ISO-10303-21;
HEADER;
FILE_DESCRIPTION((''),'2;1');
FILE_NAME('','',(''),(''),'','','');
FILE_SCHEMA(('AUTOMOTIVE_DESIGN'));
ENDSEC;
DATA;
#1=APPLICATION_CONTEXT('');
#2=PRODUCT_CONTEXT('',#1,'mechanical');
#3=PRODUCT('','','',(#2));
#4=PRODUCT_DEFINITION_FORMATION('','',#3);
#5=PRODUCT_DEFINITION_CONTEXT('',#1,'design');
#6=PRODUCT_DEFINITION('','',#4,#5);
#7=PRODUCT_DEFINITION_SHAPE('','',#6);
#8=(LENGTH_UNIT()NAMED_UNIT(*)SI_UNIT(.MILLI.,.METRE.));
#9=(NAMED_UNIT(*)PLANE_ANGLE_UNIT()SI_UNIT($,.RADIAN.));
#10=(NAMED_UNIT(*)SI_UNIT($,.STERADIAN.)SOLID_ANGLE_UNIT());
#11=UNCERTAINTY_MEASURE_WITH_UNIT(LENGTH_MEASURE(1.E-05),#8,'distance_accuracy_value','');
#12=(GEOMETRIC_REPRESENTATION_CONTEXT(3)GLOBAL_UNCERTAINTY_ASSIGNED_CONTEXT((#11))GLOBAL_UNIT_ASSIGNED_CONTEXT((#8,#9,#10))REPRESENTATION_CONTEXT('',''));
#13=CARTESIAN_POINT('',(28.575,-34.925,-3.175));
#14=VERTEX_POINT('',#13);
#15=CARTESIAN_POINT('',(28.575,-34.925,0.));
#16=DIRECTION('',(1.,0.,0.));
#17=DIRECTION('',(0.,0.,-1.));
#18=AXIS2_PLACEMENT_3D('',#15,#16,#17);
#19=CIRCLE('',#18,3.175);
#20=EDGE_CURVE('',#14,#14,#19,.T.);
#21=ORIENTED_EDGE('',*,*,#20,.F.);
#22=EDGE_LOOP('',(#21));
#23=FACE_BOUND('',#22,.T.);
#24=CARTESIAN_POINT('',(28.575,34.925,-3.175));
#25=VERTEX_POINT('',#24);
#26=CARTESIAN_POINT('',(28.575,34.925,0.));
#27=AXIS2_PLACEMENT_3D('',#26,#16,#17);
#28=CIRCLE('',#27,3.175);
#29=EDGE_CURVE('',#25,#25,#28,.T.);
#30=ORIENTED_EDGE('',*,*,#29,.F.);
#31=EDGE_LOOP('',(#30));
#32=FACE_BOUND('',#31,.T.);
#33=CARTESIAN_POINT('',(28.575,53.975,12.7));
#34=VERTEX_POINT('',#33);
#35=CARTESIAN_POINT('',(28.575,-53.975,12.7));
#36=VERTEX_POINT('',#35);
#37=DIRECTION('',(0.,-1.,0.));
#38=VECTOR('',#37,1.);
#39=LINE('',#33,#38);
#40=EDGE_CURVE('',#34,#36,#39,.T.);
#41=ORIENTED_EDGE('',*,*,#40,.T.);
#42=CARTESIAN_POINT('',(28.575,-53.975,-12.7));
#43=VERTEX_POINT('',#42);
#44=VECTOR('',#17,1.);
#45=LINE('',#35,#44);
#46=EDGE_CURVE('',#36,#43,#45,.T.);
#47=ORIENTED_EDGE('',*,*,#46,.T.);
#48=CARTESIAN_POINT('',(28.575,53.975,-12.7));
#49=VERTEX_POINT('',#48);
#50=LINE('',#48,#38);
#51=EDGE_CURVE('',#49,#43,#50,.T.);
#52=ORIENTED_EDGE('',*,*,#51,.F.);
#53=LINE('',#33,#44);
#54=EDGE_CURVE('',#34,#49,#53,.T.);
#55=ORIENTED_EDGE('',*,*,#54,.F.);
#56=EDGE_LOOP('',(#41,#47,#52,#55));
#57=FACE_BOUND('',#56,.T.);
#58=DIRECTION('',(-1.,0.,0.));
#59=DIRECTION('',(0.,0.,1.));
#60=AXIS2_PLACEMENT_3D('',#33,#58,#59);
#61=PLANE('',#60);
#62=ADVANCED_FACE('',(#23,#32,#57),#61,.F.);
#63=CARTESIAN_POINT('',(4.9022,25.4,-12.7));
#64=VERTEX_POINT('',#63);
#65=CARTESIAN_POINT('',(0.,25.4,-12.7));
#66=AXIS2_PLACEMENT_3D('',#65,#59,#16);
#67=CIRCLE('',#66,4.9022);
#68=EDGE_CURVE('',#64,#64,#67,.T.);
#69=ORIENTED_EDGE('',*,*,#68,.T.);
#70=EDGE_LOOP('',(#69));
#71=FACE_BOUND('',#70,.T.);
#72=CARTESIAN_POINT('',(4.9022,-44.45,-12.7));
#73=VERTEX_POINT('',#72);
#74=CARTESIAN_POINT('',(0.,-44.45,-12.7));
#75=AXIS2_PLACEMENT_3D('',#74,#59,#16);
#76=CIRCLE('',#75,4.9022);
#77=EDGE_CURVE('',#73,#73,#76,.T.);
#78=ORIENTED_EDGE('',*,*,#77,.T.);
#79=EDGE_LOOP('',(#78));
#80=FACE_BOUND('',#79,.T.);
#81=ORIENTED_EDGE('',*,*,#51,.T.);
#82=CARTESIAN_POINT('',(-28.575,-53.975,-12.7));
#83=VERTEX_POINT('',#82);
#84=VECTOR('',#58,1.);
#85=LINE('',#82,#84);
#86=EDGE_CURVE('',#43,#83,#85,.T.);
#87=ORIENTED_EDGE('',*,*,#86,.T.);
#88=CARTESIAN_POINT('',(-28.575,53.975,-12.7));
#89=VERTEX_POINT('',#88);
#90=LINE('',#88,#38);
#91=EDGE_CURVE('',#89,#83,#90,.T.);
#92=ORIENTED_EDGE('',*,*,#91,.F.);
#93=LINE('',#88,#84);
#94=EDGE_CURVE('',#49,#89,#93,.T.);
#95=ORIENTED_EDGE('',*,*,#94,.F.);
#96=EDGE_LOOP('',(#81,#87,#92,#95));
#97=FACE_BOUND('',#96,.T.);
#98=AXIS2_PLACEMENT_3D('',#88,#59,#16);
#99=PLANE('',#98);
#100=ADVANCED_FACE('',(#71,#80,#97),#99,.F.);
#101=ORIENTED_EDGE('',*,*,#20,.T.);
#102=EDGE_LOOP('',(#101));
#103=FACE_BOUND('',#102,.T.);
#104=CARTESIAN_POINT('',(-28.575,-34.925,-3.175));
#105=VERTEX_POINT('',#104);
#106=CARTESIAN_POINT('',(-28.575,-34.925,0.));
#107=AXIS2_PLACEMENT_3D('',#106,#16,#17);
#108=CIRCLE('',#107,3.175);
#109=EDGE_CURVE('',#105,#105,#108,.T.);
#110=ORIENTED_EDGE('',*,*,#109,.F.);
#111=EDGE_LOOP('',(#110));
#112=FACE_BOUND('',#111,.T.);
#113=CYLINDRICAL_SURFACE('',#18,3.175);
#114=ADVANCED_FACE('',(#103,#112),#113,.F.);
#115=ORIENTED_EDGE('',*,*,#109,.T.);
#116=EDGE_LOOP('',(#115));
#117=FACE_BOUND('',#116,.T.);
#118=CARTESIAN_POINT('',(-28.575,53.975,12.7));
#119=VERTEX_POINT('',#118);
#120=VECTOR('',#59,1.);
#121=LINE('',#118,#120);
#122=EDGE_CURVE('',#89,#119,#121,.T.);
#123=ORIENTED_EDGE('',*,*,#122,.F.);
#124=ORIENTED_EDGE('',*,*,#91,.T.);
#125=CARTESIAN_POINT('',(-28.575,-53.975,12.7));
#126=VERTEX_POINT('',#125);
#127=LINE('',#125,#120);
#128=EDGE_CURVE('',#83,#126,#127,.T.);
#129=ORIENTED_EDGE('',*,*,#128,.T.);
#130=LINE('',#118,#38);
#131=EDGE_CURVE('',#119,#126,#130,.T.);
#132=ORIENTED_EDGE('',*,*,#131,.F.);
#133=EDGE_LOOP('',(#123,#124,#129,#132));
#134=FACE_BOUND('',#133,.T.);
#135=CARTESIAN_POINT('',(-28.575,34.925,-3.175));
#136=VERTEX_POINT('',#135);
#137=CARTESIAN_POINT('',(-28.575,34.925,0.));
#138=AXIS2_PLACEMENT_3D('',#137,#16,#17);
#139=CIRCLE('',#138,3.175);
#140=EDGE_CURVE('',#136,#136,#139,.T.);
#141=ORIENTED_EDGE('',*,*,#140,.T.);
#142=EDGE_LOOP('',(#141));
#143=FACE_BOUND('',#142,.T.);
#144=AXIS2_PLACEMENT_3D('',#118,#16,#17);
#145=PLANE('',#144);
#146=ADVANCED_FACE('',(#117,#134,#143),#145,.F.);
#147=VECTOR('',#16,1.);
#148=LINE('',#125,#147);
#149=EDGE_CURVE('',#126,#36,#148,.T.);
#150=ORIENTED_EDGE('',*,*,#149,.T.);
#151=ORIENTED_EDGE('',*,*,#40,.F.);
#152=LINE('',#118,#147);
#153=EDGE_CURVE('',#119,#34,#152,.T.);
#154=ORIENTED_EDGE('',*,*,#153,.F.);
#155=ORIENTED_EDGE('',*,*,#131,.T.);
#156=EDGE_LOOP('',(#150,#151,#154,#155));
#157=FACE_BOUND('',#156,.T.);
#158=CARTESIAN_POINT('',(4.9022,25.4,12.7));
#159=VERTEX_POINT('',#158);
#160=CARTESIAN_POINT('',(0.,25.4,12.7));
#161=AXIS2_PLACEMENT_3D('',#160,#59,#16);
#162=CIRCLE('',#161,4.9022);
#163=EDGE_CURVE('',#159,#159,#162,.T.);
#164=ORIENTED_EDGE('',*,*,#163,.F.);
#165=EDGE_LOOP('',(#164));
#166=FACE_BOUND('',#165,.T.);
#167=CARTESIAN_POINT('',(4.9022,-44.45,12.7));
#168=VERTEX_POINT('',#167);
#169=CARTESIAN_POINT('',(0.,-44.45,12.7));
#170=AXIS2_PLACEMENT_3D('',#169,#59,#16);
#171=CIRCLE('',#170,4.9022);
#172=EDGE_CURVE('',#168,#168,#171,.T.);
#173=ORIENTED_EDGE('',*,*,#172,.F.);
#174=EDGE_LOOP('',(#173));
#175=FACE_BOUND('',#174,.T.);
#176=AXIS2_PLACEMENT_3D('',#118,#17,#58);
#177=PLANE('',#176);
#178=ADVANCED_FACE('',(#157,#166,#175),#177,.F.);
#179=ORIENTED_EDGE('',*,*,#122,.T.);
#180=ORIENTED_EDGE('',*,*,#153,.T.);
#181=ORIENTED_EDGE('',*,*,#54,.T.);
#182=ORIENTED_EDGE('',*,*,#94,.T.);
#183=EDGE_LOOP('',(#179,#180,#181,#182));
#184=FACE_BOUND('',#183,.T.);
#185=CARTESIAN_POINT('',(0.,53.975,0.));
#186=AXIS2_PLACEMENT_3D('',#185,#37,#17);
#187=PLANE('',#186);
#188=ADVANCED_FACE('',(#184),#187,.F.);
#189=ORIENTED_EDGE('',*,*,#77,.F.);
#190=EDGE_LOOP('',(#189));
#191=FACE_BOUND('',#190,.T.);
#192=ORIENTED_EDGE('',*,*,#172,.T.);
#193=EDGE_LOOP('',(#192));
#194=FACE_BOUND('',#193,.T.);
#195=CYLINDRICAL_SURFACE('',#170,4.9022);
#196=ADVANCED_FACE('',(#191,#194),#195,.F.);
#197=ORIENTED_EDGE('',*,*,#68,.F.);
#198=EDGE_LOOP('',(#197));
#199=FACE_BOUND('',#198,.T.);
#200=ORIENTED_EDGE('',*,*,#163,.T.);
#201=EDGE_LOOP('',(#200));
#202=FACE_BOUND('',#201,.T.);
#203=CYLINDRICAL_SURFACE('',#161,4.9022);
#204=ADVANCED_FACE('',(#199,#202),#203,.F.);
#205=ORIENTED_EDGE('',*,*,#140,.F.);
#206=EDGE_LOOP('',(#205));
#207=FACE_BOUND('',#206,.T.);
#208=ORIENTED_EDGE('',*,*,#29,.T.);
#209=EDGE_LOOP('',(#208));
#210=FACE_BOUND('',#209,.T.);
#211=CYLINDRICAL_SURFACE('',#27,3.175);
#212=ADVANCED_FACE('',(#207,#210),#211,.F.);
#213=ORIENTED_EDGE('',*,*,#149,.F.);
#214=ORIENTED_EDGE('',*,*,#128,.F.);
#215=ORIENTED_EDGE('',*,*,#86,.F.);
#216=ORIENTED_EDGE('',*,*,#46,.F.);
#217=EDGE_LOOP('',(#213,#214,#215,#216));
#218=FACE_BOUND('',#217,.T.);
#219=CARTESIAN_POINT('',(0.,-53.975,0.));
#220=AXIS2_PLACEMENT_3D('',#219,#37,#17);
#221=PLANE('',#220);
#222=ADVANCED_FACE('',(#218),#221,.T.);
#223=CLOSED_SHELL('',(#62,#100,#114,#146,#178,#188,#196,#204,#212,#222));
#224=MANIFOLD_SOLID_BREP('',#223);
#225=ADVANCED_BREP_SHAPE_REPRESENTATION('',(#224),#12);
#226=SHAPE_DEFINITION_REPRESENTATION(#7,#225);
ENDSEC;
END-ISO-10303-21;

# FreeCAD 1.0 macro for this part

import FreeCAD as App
import Part
import Sketcher
from FreeCAD import Vector
Q = App.Units.Quantity


def add_polygon(sketch, points):
    """Adds a closed chain of lines whose ends are joined by coincident constraints."""
    first, n = sketch.GeometryCount, len(points)
    for a, b in zip(points, points[1:] + points[:1]):
        sketch.addGeometry(Part.LineSegment(App.Vector(*a, 0), App.Vector(*b, 0)), False)
    for i in range(n):
        sketch.addConstraint(Sketcher.Constraint("Coincident", first + i, 2, first + (i + 1) % n, 1))

doc = App.newDocument("Part")
body = doc.addObject("PartDesign::Body", "Body")

# Sketch on XZ plane
sketch1 = doc.addObject("Sketcher::SketchObject", "Sketch")
body.addObject(sketch1)
sketch1.AttachmentSupport = (doc.XZ_Plane, [""])
sketch1.MapMode = "FlatFace"
add_polygon(sketch1, [(-29, -13), (-29, 13), (29, 13), (29, -13)])  # lines 0-3
sketch1.addConstraint(Sketcher.Constraint("Vertical", 0))
sketch1.addConstraint(Sketcher.Constraint("Horizontal", 1))
sketch1.addConstraint(Sketcher.Constraint("Vertical", 2))
sketch1.addConstraint(Sketcher.Constraint("Horizontal", 3))
sketch1.addConstraint(Sketcher.Constraint("Symmetric", 0, 2, 2, 2, -1, 1))
sketch1.addConstraint(Sketcher.Constraint("DistanceY", 0, 1, 0, 2, Q("1 in")))
sketch1.addConstraint(Sketcher.Constraint("DistanceX", 1, 1, 1, 2, Q("2.25 in")))
pad1 = doc.addObject("PartDesign::Pad", "Pad")
body.addObject(pad1)
pad1.Profile = sketch1
pad1.Length = Q("4.25 in")
pad1.Midplane = True

# Sketch on YZ plane
sketch2 = doc.addObject("Sketcher::SketchObject", "Sketch001")
body.addObject(sketch2)
sketch2.AttachmentSupport = (doc.YZ_Plane, [""])
sketch2.MapMode = "FlatFace"
sketch2.AttachmentOffset = App.Placement(Vector(0, 0, 1.125 * 25.4), App.Rotation())
sketch2.addGeometry(Part.Circle(Vector(-34.9, 0, 0), Vector(0, 0, 1), 3.2), False)
sketch2.addGeometry(Part.Circle(Vector(34.9, 0, 0), Vector(0, 0, 1), 3.2), False)
sketch2.addConstraint(Sketcher.Constraint("Equal", 0, 1))
sketch2.addConstraint(Sketcher.Constraint("Symmetric", 0, 3, 1, 3, -1, 1))
sketch2.addConstraint(Sketcher.Constraint("PointOnObject", 0, 3, -1))
sketch2.addConstraint(Sketcher.Constraint("Diameter", 0, Q("0.25 in")))
sketch2.addConstraint(Sketcher.Constraint("DistanceX", 0, 3, 1, 3, Q("2.75 in")))
doc.recompute()
hole = doc.addObject("PartDesign::Hole", "Hole")
body.addObject(hole)
hole.Profile = sketch2
hole.ThreadType = "None"
hole.Diameter = Q("0.25 in")
hole.DepthType = "ThroughAll"

# Sketch on XY plane
sketch3 = doc.addObject("Sketcher::SketchObject", "Sketch002")
body.addObject(sketch3)
sketch3.AttachmentSupport = (doc.XY_Plane, [""])
sketch3.MapMode = "FlatFace"
sketch3.AttachmentOffset = App.Placement(Vector(0, 0, 0.5 * 25.4), App.Rotation())
sketch3.addGeometry(Part.Circle(Vector(0, -44.5, 0), Vector(0, 0, 1), 4.9), False)
sketch3.addGeometry(Part.Circle(Vector(0, 25.4, 0), Vector(0, 0, 1), 4.9), False)
sketch3.addConstraint(Sketcher.Constraint("Equal", 0, 1))
sketch3.addConstraint(Sketcher.Constraint("PointOnObject", 0, 3, -2))
sketch3.addConstraint(Sketcher.Constraint("PointOnObject", 1, 3, -2))
sketch3.addConstraint(Sketcher.Constraint("Diameter", 0, Q("0.386 in")))
sketch3.addConstraint(Sketcher.Constraint("DistanceY", -1, 1, 1, 3, Q("1 in")))
sketch3.addConstraint(Sketcher.Constraint("DistanceY", 0, 3, -1, 1, Q("1.75 in")))
doc.recompute()
hole2 = doc.addObject("PartDesign::Hole", "Hole001")
body.addObject(hole2)
hole2.Profile = sketch3
hole2.ThreadType = "None"
hole2.Diameter = Q("0.386 in")
hole2.DepthType = "ThroughAll"

doc.recompute()
